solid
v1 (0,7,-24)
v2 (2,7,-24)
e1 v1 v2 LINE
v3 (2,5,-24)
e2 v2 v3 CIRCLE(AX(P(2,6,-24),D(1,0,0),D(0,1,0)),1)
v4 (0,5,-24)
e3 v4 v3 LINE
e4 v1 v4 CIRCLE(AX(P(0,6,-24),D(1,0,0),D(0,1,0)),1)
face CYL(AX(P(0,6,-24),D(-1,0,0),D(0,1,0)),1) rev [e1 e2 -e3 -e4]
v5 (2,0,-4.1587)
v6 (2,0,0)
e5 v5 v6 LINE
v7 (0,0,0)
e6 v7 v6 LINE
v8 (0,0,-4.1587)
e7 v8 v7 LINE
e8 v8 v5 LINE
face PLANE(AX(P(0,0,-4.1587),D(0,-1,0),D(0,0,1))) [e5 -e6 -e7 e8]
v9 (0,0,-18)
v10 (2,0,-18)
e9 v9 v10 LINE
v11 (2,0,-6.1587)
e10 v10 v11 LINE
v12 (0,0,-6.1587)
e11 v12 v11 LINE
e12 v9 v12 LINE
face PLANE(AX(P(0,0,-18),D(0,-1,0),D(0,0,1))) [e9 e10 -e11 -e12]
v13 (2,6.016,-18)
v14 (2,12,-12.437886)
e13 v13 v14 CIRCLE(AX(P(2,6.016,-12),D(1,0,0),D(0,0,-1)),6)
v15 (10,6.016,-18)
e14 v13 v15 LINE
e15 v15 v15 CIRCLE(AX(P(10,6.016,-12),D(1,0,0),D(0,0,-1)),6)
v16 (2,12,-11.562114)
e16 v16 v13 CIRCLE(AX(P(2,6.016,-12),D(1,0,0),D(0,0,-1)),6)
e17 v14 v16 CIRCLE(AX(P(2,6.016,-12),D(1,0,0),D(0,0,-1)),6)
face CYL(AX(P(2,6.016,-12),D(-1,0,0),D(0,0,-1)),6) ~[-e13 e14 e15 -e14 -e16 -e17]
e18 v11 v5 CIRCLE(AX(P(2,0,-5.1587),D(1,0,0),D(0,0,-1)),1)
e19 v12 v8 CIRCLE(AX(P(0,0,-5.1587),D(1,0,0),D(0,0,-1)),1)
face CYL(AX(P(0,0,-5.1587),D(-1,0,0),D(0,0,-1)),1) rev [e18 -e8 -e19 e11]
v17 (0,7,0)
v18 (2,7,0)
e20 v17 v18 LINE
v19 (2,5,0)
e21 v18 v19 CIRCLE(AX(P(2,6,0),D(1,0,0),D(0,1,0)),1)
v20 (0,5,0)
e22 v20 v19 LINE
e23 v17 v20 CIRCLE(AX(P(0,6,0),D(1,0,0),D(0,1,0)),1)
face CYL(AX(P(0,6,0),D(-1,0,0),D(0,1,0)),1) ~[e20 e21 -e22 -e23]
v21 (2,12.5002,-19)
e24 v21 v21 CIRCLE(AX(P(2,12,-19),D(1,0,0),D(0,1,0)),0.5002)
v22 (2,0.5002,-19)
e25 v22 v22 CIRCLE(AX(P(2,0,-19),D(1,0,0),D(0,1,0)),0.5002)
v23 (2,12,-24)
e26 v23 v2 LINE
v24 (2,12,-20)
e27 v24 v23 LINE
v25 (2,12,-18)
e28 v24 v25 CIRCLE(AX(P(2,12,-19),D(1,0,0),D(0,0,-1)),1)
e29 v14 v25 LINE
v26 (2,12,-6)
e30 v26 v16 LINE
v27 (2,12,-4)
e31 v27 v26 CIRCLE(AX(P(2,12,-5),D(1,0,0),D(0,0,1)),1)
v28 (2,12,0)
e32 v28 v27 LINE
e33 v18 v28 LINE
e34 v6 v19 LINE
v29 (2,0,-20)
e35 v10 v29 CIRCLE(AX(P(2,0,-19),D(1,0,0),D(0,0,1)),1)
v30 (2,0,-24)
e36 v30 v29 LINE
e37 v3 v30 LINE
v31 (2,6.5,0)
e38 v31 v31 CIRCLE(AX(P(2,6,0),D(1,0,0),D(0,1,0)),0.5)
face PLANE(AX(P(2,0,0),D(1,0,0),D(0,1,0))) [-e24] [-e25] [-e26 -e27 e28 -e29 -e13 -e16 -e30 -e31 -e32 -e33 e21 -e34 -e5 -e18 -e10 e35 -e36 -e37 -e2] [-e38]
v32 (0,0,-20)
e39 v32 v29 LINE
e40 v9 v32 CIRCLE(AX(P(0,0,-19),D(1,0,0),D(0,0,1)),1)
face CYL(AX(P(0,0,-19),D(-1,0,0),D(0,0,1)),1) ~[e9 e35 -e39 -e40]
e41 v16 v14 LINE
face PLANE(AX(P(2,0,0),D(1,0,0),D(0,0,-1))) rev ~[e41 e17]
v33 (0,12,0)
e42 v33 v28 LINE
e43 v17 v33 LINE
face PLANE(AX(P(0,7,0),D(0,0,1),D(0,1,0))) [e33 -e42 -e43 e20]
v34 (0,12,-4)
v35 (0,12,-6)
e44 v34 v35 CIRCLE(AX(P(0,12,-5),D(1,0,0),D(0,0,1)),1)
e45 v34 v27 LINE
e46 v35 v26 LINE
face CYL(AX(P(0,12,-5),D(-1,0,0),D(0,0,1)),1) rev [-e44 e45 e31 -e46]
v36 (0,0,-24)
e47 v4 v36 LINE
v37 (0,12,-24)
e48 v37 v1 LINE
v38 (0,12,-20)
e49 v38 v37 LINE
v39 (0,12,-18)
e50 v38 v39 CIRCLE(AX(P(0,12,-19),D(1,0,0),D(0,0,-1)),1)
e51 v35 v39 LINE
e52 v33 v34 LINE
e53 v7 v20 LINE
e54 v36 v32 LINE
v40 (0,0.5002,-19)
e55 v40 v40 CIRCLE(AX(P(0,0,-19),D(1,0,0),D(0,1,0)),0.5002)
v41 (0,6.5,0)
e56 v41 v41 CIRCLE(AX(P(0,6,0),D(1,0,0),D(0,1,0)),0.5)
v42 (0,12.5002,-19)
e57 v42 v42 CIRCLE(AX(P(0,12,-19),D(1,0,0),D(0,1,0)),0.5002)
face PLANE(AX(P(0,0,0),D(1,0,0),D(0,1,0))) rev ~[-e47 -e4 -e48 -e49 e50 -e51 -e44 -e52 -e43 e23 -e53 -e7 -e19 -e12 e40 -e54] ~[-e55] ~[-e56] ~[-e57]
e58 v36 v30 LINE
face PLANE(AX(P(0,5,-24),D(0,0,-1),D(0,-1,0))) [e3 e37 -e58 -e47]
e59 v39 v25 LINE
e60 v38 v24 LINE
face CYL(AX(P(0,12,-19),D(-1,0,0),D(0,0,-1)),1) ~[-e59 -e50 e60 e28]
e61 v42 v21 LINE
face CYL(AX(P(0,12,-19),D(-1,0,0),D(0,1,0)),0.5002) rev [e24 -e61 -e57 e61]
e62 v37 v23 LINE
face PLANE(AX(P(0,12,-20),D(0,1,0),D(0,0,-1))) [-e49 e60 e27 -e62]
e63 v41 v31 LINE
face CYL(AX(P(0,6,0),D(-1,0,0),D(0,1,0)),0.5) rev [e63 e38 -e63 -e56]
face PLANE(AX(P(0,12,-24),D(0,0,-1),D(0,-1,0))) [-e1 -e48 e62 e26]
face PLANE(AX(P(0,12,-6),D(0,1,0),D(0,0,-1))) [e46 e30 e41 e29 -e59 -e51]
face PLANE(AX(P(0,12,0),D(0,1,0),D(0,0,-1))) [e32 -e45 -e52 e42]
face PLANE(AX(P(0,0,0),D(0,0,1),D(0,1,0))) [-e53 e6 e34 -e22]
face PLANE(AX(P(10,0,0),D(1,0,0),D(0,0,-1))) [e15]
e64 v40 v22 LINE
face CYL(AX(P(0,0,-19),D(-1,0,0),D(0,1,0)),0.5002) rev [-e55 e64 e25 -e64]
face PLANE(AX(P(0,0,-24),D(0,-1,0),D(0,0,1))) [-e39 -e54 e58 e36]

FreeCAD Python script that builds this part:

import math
import FreeCAD as App
import Part
import Sketcher
from FreeCAD import Vector
Q = App.Units.Quantity

doc = App.newDocument("Part")
params = doc.addObject("Spreadsheet::Sheet", "Params")
for row, (alias, value) in enumerate([
    ("sketch1_diameter", "1 mm"),
    ("sketch1_radius", "1 mm"),
    ("sketch1_width", "5 mm"),
    ("sketch1_height", "12 mm"),
    ("pad1_length", "2 mm"),
    ("sketch2_diameter", "12 mm"),
    ("pad2_length", "8 mm"),
], start=1):
    params.set(f"A{row}", alias)
    params.set(f"B{row}", "=" + value)
    params.setAlias(f"B{row}", alias)

body = doc.addObject("PartDesign::Body", "Body")

# Sketch on YZ plane
sketch1 = doc.addObject("Sketcher::SketchObject", "Sketch")
body.addObject(sketch1)
sketch1.AttachmentSupport = (doc.YZ_Plane, [""])
sketch1.MapMode = "FlatFace"
sketch1.addGeometry(Part.ArcOfCircle(Part.Circle(Vector(12, -5, 0), Vector(0, 0, 1), 1), math.radians(90), math.radians(270)), False)
sketch1.addGeometry(Part.LineSegment(Vector(12, -4, 0), Vector(12, 0, 0)), False)
sketch1.addGeometry(Part.LineSegment(Vector(12, 0, 0), Vector(7, 0, 0)), False)
sketch1.addGeometry(Part.ArcOfCircle(Part.Circle(Vector(6, 0, 0), Vector(0, 0, 1), 1), math.radians(0), math.radians(180)), False)
sketch1.addGeometry(Part.LineSegment(Vector(5, 0, 0), Vector(0, 0, 0)), False)
sketch1.addGeometry(Part.LineSegment(Vector(0, 0, 0), Vector(0, -4.1587, 0)), False)
sketch1.addGeometry(Part.ArcOfCircle(Part.Circle(Vector(0, -5.1587, 0), Vector(0, 0, 1), 1), math.radians(-90), math.radians(90)), False)
sketch1.addGeometry(Part.LineSegment(Vector(0, -6.1587, 0), Vector(0, -18, 0)), False)
sketch1.addGeometry(Part.ArcOfCircle(Part.Circle(Vector(0, -19, 0), Vector(0, 0, 1), 1), math.radians(90), math.radians(270)), False)
sketch1.addGeometry(Part.LineSegment(Vector(0, -20, 0), Vector(0, -24, 0)), False)
sketch1.addGeometry(Part.LineSegment(Vector(0, -24, 0), Vector(5, -24, 0)), False)
sketch1.addGeometry(Part.ArcOfCircle(Part.Circle(Vector(6, -24, 0), Vector(0, 0, 1), 1), math.radians(0), math.radians(180)), False)
sketch1.addGeometry(Part.LineSegment(Vector(7, -24, 0), Vector(12, -24, 0)), False)
sketch1.addGeometry(Part.LineSegment(Vector(12, -24, 0), Vector(12, -20, 0)), False)
sketch1.addGeometry(Part.ArcOfCircle(Part.Circle(Vector(12, -19, 0), Vector(0, 0, 1), 1), math.radians(-90), math.radians(90)), False)
sketch1.addGeometry(Part.LineSegment(Vector(12, -18, 0), Vector(12, -6, 0)), False)
sketch1.addGeometry(Part.Circle(Vector(0, -19, 0), Vector(0, 0, 1), 0.5002), False)
sketch1.addGeometry(Part.Circle(Vector(12, -19, 0), Vector(0, 0, 1), 0.5002), False)
sketch1.addGeometry(Part.Circle(Vector(6, 0, 0), Vector(0, 0, 1), 0.5), False)
sketch1.addConstraint(Sketcher.Constraint("Coincident", 0, 1, 1, 1))
sketch1.addConstraint(Sketcher.Constraint("Coincident", 1, 2, 2, 1))
sketch1.addConstraint(Sketcher.Constraint("Coincident", 2, 2, 3, 1))
sketch1.addConstraint(Sketcher.Constraint("Coincident", 3, 2, 4, 1))
sketch1.addConstraint(Sketcher.Constraint("Coincident", 4, 2, 5, 1))
sketch1.addConstraint(Sketcher.Constraint("Coincident", 5, 2, 6, 2))
sketch1.addConstraint(Sketcher.Constraint("Coincident", 6, 1, 7, 1))
sketch1.addConstraint(Sketcher.Constraint("Coincident", 7, 2, 8, 1))
sketch1.addConstraint(Sketcher.Constraint("Coincident", 8, 2, 9, 1))
sketch1.addConstraint(Sketcher.Constraint("Coincident", 9, 2, 10, 1))
sketch1.addConstraint(Sketcher.Constraint("Coincident", 10, 2, 11, 2))
sketch1.addConstraint(Sketcher.Constraint("Coincident", 11, 1, 12, 1))
sketch1.addConstraint(Sketcher.Constraint("Coincident", 12, 2, 13, 1))
sketch1.addConstraint(Sketcher.Constraint("Coincident", 13, 2, 14, 1))
sketch1.addConstraint(Sketcher.Constraint("Coincident", 14, 2, 15, 1))
sketch1.addConstraint(Sketcher.Constraint("Coincident", 15, 2, 0, 2))
sketch1.addConstraint(Sketcher.Constraint("Vertical", 1))
sketch1.addConstraint(Sketcher.Constraint("Horizontal", 2))
sketch1.addConstraint(Sketcher.Constraint("Horizontal", 4))
sketch1.addConstraint(Sketcher.Constraint("Vertical", 5))
sketch1.addConstraint(Sketcher.Constraint("Vertical", 7))
sketch1.addConstraint(Sketcher.Constraint("Vertical", 9))
sketch1.addConstraint(Sketcher.Constraint("Horizontal", 10))
sketch1.addConstraint(Sketcher.Constraint("Horizontal", 12))
sketch1.addConstraint(Sketcher.Constraint("Vertical", 13))
sketch1.addConstraint(Sketcher.Constraint("Vertical", 15))
sketch1.addConstraint(Sketcher.Constraint("Coincident", 4, 2, -1, 1))
sketch1.addConstraint(Sketcher.Constraint("Coincident", 16, 3, 8, 3))
sketch1.addConstraint(Sketcher.Constraint("Coincident", 17, 3, 14, 3))
sketch1.addConstraint(Sketcher.Constraint("Coincident", 18, 3, 3, 3))
sketch1.addConstraint(Sketcher.Constraint("Equal", 0, 3))
sketch1.addConstraint(Sketcher.Constraint("Equal", 3, 6))
sketch1.addConstraint(Sketcher.Constraint("Equal", 6, 8))
sketch1.addConstraint(Sketcher.Constraint("Equal", 8, 11))
sketch1.addConstraint(Sketcher.Constraint("Equal", 11, 14))
sketch1.addConstraint(Sketcher.Constraint("Equal", 16, 17))
sketch1.addConstraint(Sketcher.Constraint("Equal", 17, 18))
sketch1.addConstraint(Sketcher.Constraint("PointOnObject", 3, 3, -1))
sketch1.addConstraint(Sketcher.Constraint("PointOnObject", 6, 3, -2))
sketch1.addConstraint(Sketcher.Constraint("PointOnObject", 8, 3, -2))
sketch1.addConstraint(Sketcher.Constraint("PointOnObject", 1, 2, -1))
sketch1.addConstraint(Sketcher.Constraint("PointOnObject", 6, 1, -2))
sketch1.addConstraint(Sketcher.Constraint("PointOnObject", 8, 2, -2))
sketch1.addConstraint(Sketcher.Constraint("Horizontal", 8, 3, 14, 3))
sketch1.addConstraint(Sketcher.Constraint("Horizontal", 11, 3, 9, 2))
sketch1.addConstraint(Sketcher.Constraint("Horizontal", 10, 2, 11, 1))
sketch1.addConstraint(Sketcher.Constraint("Vertical", 3, 3, 11, 3))
sketch1.addConstraint(Sketcher.Constraint("Vertical", 0, 3, 14, 3))
sketch1.addConstraint(Sketcher.Constraint("Vertical", 17, 3, 0, 1))
sketch1.addConstraint(Sketcher.Constraint("Vertical", 1, 2, 12, 2))
sketch1.addConstraint(Sketcher.Constraint("Vertical", 13, 2, 14, 2))
sketch1.addConstraint(Sketcher.Constraint("Equal", 2, 4))
sketch1.addConstraint(Sketcher.Constraint("Equal", 1, 9))
sketch1.addConstraint(Sketcher.Constraint("Diameter", 18, Q("1 mm")))
sketch1.addConstraint(Sketcher.Constraint("Radius", 0, Q("1 mm")))
sketch1.addConstraint(Sketcher.Constraint("DistanceX", 2, 2, 2, 1, Q("5 mm")))
sketch1.addConstraint(Sketcher.Constraint("DistanceY", 15, 1, 15, 2, Q("12 mm")))
sketch1.addConstraint(Sketcher.Constraint("DistanceY", 0, 3, -1, 1, Q("5 mm")))
sketch1.addConstraint(Sketcher.Constraint("DistanceY", 5, 2, 5, 1, Q("4.1587 mm")))
sketch1.setExpression("Constraints[53]", "Params.sketch1_diameter")
sketch1.setExpression("Constraints[54]", "Params.sketch1_radius")
sketch1.setExpression("Constraints[55]", "Params.sketch1_width")
sketch1.setExpression("Constraints[56]", "Params.sketch1_height")
pad1 = doc.addObject("PartDesign::Pad", "Pad")
body.addObject(pad1)
pad1.Profile = sketch1
pad1.setExpression("Length", "Params.pad1_length")

# Sketch on YZ plane
sketch2 = doc.addObject("Sketcher::SketchObject", "Sketch001")
body.addObject(sketch2)
sketch2.AttachmentSupport = (doc.YZ_Plane, [""])
sketch2.MapMode = "FlatFace"
sketch2.AttachmentOffset = App.Placement(Vector(0, 0, 2), App.Rotation())
sketch2.addGeometry(Part.Circle(Vector(6.016, -12, 0), Vector(0, 0, 1), 6), False)
sketch2.addConstraint(Sketcher.Constraint("Diameter", 0, Q("12 mm")))
sketch2.addConstraint(Sketcher.Constraint("DistanceY", 0, 3, -1, 1, Q("12 mm")))
sketch2.addConstraint(Sketcher.Constraint("DistanceX", -1, 1, 0, 3, Q("6.016 mm")))
sketch2.setExpression("Constraints[0]", "Params.sketch2_diameter")
pad2 = doc.addObject("PartDesign::Pad", "Pad001")
body.addObject(pad2)
pad2.Profile = sketch2
pad2.setExpression("Length", "Params.pad2_length")

doc.recompute()
